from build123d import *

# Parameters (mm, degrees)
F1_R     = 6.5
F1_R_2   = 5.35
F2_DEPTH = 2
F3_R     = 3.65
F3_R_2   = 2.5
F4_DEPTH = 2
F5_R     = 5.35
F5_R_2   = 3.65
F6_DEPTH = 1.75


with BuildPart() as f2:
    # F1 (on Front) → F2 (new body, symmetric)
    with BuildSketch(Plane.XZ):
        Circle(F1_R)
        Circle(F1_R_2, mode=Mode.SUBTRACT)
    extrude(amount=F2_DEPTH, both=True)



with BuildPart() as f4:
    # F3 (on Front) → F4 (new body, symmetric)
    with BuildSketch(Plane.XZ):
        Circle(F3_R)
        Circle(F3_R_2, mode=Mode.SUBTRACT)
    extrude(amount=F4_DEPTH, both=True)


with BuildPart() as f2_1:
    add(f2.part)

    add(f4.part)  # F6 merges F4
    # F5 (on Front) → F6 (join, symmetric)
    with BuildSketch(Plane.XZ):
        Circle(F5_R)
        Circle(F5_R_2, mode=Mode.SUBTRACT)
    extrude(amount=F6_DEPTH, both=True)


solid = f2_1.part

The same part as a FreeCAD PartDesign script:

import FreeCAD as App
import Part
import Sketcher

doc = App.newDocument("Part")
params = doc.addObject("Spreadsheet::Sheet", "Params")
for row, (alias, value) in enumerate([
    ("sketch1_diameter", "13 mm"),
    ("sketch1_diameter2", "10.7 mm"),
    ("pad1_length", "4 mm"),
    ("sketch2_diameter", "5 mm"),
    ("sketch2_diameter2", "7.3 mm"),
    ("pad2_length", "4 mm"),
    ("sketch3_diameter", "10.7 mm"),
    ("sketch3_diameter2", "7.3 mm"),
    ("pad3_length", "3.5 mm"),
], start=1):
    params.set(f"A{row}", alias)
    params.set(f"B{row}", "=" + value)
    params.setAlias(f"B{row}", alias)

body = doc.addObject("PartDesign::Body", "Body")

sketch1 = body.newObject("Sketcher::SketchObject", "Sketch")
sketch1.AttachmentSupport = (doc.getObject("XZ_Plane"), [""])
sketch1.MapMode = "FlatFace"
sketch1.addGeometry([
    Part.Circle(App.Vector(0, 0, 0), App.Vector(0, 0, 1), 6),
    Part.Circle(App.Vector(0, 0, 0), App.Vector(0, 0, 1), 5),
], False)
sketch1.addConstraint([
    Sketcher.Constraint("Coincident", 0, 3, -1, 1),
    Sketcher.Constraint("Coincident", 1, 3, -1, 1),
    Sketcher.Constraint("Diameter", 0, 13.0),
    Sketcher.Constraint("Diameter", 1, 10.7),
])
sketch1.setExpression("Constraints[2]", "Params.sketch1_diameter")
sketch1.setExpression("Constraints[3]", "Params.sketch1_diameter2")
pad1 = body.newObject("PartDesign::Pad", "Pad")
pad1.Profile = sketch1
pad1.setExpression("Length", "Params.pad1_length")
pad1.Midplane = True
body2 = doc.addObject("PartDesign::Body", "Body001")

sketch2 = body2.newObject("Sketcher::SketchObject", "Sketch001")
sketch2.AttachmentSupport = (doc.getObject("XZ_Plane001"), [""])
sketch2.MapMode = "FlatFace"
sketch2.addGeometry([
    Part.Circle(App.Vector(0, 0, 0), App.Vector(0, 0, 1), 3.6),
    Part.Circle(App.Vector(0, 0, 0), App.Vector(0, 0, 1), 2.5),
], False)
sketch2.addConstraint([
    Sketcher.Constraint("Coincident", 0, 3, -1, 1),
    Sketcher.Constraint("Coincident", 1, 3, -1, 1),
    Sketcher.Constraint("Diameter", 1, 5.0),
    Sketcher.Constraint("Diameter", 0, 7.3),
])
sketch2.setExpression("Constraints[2]", "Params.sketch2_diameter")
sketch2.setExpression("Constraints[3]", "Params.sketch2_diameter2")
pad2 = body2.newObject("PartDesign::Pad", "Pad001")
pad2.Profile = sketch2
pad2.setExpression("Length", "Params.pad2_length")
pad2.Midplane = True
body.AllowCompound = True
doc.recompute()

boolean = body.newObject("PartDesign::Boolean", "Boolean")
boolean.Type = "Fuse"
boolean.addObjects([body2])

sketch3 = body.newObject("Sketcher::SketchObject", "Sketch002")
sketch3.AttachmentSupport = (doc.getObject("XZ_Plane"), [""])
sketch3.MapMode = "FlatFace"
sketch3.addGeometry([
    Part.Circle(App.Vector(0, 0, 0), App.Vector(0, 0, 1), 5.3),
    Part.Circle(App.Vector(0, 0, 0), App.Vector(0, 0, 1), 3.6),
], False)
sketch3.addConstraint([
    Sketcher.Constraint("Coincident", 0, 3, -1, 1),
    Sketcher.Constraint("Coincident", 1, 3, -1, 1),
    Sketcher.Constraint("Diameter", 0, 10.7),
    Sketcher.Constraint("Diameter", 1, 7.3),
])
sketch3.setExpression("Constraints[2]", "Params.sketch3_diameter")
sketch3.setExpression("Constraints[3]", "Params.sketch3_diameter2")
pad3 = body.newObject("PartDesign::Pad", "Pad002")
pad3.Profile = sketch3
pad3.setExpression("Length", "Params.pad3_length")
pad3.Midplane = True

doc.recompute()
